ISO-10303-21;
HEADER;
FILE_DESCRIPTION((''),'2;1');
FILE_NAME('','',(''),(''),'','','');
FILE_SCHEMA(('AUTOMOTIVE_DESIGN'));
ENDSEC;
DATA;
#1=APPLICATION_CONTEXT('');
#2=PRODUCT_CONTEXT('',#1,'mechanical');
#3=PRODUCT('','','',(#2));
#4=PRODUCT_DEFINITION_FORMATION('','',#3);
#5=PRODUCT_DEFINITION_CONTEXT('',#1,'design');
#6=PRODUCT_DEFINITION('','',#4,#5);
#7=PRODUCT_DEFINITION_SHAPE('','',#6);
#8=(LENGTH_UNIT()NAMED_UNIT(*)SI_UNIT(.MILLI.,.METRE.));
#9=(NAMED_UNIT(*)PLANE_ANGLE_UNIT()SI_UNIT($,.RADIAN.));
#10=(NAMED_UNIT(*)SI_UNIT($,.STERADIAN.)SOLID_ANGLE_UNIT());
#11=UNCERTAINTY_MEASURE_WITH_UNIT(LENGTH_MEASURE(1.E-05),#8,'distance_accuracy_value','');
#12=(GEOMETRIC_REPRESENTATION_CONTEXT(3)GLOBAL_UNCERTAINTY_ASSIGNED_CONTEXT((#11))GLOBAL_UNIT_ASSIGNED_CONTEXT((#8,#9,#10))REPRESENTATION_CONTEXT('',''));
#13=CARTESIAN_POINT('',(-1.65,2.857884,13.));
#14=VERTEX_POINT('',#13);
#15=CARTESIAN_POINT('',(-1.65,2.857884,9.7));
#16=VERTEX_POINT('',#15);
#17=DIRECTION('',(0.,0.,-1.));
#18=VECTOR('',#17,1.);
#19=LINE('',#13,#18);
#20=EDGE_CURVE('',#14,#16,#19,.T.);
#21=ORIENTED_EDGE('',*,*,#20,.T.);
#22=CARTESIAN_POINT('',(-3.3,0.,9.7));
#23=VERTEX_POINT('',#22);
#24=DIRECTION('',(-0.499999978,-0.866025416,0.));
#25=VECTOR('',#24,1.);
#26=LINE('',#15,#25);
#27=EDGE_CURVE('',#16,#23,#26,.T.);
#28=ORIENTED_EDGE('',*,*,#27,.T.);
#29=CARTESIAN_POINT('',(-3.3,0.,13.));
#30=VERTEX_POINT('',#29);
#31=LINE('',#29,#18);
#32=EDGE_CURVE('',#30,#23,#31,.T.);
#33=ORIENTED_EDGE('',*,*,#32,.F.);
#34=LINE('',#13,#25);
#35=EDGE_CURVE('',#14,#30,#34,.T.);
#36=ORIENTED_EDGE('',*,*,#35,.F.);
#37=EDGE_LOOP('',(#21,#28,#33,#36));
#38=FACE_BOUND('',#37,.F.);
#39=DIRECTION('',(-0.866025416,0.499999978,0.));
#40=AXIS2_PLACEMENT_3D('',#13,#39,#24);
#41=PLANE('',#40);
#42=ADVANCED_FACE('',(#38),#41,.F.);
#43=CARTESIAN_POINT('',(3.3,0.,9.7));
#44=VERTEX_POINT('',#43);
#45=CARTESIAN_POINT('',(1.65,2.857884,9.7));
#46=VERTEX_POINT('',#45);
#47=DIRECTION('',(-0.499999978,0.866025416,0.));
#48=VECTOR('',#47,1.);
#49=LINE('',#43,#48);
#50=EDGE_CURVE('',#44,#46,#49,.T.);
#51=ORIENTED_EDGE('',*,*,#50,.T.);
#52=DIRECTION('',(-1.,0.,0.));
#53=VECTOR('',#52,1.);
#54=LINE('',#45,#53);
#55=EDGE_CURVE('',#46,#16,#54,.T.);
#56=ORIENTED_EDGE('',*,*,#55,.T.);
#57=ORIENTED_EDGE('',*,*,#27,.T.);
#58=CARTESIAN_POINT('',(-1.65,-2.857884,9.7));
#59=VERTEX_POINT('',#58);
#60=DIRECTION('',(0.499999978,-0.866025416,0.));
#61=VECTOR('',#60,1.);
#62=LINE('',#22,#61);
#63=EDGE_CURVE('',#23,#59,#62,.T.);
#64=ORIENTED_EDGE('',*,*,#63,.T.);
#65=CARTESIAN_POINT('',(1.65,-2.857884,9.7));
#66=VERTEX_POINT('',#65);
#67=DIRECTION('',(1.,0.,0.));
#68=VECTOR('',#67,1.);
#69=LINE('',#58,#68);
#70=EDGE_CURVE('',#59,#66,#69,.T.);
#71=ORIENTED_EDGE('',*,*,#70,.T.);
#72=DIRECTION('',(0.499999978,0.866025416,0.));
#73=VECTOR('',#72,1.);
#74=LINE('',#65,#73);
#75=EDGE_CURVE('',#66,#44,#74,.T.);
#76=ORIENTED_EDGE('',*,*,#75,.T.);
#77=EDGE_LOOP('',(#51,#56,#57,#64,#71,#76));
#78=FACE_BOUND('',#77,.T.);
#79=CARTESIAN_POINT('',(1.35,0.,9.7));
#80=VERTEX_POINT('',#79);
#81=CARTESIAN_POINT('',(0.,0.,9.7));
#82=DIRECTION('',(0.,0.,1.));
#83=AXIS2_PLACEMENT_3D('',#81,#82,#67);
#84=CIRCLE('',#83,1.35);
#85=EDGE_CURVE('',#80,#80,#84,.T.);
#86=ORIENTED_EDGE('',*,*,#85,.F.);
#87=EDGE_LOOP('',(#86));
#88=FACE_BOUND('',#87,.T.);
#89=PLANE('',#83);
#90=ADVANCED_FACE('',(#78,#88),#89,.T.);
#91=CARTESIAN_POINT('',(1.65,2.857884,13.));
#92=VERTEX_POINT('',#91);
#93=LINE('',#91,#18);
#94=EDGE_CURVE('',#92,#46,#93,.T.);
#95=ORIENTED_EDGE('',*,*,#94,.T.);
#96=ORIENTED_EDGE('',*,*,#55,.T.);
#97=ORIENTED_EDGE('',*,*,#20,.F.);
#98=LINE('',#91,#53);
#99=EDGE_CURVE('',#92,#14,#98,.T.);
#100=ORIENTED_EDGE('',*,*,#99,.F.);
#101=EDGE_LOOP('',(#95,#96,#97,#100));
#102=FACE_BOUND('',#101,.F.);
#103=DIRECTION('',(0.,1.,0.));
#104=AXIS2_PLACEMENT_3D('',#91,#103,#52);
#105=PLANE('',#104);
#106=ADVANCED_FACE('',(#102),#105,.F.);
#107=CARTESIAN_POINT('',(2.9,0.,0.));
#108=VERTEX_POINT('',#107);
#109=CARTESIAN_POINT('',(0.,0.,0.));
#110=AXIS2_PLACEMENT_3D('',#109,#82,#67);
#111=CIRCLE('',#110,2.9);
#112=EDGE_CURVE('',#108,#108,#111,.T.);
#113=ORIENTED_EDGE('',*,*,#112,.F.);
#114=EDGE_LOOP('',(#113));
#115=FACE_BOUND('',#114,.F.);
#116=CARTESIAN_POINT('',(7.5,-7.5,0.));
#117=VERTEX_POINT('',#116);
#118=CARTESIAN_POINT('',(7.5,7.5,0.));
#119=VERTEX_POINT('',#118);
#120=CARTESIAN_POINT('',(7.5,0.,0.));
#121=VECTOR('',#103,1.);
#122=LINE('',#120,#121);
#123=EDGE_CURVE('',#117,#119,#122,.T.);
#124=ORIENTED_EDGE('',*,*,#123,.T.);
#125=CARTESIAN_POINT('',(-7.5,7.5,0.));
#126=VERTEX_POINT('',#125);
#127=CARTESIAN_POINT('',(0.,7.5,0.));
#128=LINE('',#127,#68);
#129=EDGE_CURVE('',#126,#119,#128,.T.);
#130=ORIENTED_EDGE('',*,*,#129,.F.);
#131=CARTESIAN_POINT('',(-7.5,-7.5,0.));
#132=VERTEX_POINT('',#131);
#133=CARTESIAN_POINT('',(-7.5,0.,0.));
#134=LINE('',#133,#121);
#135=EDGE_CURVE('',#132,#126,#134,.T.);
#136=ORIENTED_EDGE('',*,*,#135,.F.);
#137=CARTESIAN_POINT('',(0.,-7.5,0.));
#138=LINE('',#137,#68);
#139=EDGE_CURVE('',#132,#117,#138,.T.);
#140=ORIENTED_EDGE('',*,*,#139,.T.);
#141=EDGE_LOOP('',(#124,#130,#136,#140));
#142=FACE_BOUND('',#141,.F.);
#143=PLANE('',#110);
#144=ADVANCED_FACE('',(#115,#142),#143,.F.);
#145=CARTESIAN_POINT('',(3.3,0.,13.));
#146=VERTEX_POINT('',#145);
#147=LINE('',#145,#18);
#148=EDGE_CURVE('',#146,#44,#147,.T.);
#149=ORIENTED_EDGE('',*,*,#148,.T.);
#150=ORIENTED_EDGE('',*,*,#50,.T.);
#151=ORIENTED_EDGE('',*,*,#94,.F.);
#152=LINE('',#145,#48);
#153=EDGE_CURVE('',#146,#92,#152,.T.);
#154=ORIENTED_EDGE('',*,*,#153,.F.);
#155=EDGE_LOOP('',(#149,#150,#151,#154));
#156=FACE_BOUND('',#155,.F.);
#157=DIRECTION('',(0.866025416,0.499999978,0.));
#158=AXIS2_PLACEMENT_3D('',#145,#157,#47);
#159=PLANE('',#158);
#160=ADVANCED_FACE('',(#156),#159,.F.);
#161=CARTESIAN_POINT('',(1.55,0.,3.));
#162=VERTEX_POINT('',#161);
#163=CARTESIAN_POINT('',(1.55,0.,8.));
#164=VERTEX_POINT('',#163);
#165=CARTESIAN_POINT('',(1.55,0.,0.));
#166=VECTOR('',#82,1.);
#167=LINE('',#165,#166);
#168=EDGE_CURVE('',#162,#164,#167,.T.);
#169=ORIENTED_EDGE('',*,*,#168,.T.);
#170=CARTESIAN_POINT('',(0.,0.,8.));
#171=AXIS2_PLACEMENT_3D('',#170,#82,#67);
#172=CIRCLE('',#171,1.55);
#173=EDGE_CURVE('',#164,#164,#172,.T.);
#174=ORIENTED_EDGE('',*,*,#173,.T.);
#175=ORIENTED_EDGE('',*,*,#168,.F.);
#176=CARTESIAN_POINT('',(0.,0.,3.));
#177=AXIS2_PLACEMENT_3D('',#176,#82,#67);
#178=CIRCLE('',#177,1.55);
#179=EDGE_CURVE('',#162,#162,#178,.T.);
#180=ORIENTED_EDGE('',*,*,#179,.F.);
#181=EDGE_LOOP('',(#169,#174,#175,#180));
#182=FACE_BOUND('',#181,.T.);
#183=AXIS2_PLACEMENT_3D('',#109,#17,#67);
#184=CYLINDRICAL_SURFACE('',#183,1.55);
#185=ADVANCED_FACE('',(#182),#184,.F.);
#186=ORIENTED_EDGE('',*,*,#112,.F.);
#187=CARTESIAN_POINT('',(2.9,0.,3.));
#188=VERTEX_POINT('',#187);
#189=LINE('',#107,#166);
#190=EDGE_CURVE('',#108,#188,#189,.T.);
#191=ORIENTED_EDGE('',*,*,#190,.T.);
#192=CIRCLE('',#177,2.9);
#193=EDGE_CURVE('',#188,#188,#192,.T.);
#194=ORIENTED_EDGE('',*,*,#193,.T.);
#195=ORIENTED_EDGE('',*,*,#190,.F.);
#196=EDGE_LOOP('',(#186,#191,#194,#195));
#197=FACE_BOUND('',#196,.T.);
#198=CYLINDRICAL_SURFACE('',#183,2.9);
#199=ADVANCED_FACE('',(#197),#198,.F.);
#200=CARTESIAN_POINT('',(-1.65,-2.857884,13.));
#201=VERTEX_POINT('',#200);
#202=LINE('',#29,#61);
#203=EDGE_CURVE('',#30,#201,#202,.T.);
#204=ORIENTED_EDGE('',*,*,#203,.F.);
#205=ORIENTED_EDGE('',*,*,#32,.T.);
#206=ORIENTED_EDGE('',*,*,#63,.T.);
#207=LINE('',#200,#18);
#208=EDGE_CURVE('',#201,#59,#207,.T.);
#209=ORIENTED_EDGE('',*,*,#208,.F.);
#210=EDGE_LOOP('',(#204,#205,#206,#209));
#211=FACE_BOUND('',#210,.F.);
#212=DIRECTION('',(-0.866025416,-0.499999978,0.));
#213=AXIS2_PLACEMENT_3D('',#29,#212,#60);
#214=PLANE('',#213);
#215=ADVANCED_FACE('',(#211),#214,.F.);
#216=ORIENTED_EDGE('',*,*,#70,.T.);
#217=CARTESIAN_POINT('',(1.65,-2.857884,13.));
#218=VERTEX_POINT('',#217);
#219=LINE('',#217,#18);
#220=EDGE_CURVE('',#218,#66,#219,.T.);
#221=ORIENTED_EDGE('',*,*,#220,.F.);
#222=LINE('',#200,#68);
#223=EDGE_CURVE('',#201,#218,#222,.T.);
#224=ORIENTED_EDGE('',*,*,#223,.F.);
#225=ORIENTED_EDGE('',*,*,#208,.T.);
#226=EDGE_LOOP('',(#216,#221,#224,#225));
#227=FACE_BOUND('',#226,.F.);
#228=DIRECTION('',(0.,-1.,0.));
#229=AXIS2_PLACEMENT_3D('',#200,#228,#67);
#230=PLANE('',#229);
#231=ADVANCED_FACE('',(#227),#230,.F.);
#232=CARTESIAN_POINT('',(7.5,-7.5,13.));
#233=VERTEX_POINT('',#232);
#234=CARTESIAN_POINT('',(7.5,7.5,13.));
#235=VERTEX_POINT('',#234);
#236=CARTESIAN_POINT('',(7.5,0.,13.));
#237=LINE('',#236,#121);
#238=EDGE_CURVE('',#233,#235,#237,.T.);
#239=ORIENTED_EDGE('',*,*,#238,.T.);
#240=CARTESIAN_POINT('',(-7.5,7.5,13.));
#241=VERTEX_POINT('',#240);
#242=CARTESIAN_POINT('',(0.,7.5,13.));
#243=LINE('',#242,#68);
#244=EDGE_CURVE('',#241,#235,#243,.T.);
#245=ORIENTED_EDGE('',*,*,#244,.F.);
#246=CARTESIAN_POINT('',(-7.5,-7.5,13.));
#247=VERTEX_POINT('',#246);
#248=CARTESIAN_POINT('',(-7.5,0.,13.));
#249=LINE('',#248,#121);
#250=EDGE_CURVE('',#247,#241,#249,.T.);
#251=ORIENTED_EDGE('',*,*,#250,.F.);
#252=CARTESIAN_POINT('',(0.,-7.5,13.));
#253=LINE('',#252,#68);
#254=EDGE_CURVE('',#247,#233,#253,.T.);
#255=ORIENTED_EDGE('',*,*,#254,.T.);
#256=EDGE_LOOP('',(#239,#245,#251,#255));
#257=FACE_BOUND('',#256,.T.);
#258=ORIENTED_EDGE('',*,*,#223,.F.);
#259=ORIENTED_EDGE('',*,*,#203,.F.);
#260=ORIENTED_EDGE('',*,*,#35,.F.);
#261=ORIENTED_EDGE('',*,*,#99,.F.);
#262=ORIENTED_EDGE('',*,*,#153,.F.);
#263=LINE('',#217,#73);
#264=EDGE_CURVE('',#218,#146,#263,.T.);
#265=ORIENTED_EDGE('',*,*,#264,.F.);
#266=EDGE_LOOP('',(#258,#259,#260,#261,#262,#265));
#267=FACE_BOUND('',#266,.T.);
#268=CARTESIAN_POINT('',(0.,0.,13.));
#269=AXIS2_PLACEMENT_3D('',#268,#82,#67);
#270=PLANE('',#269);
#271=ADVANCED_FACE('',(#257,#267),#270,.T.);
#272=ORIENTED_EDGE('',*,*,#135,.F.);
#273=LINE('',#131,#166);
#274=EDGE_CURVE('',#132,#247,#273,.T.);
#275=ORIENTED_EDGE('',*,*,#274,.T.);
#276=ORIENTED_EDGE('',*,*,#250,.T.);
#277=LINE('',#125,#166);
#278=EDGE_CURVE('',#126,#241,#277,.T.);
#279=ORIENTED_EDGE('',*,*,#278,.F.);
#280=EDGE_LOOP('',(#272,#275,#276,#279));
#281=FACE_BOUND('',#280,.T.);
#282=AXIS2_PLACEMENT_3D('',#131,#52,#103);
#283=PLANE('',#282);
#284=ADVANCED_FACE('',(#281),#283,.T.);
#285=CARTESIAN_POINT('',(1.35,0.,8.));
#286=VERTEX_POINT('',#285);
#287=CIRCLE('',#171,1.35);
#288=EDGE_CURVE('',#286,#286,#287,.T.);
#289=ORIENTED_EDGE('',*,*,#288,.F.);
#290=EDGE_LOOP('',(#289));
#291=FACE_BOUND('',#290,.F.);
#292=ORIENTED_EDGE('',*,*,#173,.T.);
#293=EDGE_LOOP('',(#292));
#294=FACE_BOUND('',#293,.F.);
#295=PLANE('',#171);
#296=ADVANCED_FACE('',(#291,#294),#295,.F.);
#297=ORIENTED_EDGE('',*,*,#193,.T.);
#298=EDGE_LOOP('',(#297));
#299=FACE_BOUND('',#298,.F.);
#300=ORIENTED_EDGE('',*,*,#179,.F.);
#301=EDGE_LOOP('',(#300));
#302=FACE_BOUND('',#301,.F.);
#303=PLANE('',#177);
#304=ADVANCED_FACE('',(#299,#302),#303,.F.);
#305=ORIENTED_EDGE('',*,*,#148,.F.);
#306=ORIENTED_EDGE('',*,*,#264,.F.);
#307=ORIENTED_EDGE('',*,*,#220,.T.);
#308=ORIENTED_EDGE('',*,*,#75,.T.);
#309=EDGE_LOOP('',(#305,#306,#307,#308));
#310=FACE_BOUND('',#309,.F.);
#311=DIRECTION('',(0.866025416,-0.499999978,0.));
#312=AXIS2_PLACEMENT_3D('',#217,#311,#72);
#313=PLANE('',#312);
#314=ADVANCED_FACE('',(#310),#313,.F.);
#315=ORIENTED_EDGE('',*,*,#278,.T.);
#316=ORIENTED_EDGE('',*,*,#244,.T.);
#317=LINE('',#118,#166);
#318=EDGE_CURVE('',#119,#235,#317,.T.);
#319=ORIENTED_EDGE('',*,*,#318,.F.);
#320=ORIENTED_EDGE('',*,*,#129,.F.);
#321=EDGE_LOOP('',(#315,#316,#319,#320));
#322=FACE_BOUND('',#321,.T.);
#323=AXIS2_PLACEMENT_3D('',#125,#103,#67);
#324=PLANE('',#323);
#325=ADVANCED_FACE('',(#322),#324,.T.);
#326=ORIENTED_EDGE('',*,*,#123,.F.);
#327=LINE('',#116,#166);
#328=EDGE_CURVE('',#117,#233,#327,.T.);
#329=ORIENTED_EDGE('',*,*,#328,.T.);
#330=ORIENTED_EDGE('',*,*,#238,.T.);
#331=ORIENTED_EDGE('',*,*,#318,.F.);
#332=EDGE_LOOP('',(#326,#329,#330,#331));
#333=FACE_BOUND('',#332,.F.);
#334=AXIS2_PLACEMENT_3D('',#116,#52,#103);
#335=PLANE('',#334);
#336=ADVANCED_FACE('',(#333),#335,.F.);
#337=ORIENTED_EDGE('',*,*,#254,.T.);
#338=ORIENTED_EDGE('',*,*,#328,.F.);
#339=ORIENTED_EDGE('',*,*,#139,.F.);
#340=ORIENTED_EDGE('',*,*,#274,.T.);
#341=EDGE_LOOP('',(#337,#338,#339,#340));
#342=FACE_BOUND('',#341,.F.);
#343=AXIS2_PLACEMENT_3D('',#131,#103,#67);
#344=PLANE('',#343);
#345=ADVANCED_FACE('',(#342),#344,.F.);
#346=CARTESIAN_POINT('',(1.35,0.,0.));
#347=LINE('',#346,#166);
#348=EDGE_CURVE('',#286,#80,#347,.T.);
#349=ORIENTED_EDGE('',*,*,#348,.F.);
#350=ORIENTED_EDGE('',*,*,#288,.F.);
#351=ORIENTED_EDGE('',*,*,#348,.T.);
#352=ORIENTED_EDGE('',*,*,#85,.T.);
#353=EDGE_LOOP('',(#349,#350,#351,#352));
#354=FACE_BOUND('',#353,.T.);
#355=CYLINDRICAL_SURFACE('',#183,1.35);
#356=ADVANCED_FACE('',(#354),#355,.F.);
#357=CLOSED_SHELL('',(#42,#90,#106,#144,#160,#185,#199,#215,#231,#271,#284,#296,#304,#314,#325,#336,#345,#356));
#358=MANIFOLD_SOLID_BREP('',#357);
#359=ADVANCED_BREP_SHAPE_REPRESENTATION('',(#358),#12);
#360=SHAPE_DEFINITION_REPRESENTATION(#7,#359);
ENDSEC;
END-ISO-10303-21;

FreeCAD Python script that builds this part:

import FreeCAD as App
import Part
import Sketcher
Q = App.Units.Quantity

doc = App.newDocument("Part")
body = doc.addObject("PartDesign::Body", "Body")

# Sketch on XY plane
sketch1 = body.newObject("Sketcher::SketchObject", "Sketch")
sketch1.AttachmentSupport = (doc.getObject("XY_Plane"), [""])
sketch1.MapMode = "FlatFace"
sketch1.addGeometry(Part.LineSegment(App.Vector(-7.5, 7.5, 0), App.Vector(-7.5, -7.5, 0)), False)
sketch1.addGeometry(Part.LineSegment(App.Vector(-7.5, -7.5, 0), App.Vector(7.5, -7.5, 0)), False)
sketch1.addGeometry(Part.LineSegment(App.Vector(7.5, -7.5, 0), App.Vector(7.5, 7.5, 0)), False)
sketch1.addGeometry(Part.LineSegment(App.Vector(7.5, 7.5, 0), App.Vector(-7.5, 7.5, 0)), False)
sketch1.addGeometry(Part.Circle(App.Vector(0, 0, 0), App.Vector(0, 0, 1), 1.4), False)
sketch1.addConstraint(Sketcher.Constraint("Coincident", 0, 2, 1, 1))
sketch1.addConstraint(Sketcher.Constraint("Coincident", 1, 2, 2, 1))
sketch1.addConstraint(Sketcher.Constraint("Coincident", 2, 2, 3, 1))
sketch1.addConstraint(Sketcher.Constraint("Coincident", 3, 2, 0, 1))
sketch1.addConstraint(Sketcher.Constraint("Vertical", 0))
sketch1.addConstraint(Sketcher.Constraint("Horizontal", 1))
sketch1.addConstraint(Sketcher.Constraint("Vertical", 2))
sketch1.addConstraint(Sketcher.Constraint("Horizontal", 3))
sketch1.addConstraint(Sketcher.Constraint("Coincident", 4, 3, -1, 1))
sketch1.addConstraint(Sketcher.Constraint("Symmetric", 0, 2, 2, 2, -1, 1))
sketch1.addConstraint(Sketcher.Constraint("Equal", 3, 0))
sketch1.addConstraint(Sketcher.Constraint("Diameter", 4, 2.7))
sketch1.addConstraint(Sketcher.Constraint("DistanceX", 1, 1, 1, 2, 15.0))
pad1 = body.newObject("PartDesign::Pad", "Pad")
pad1.Profile = sketch1
pad1.Length = 13

# Sketch on XY plane
sketch2 = body.newObject("Sketcher::SketchObject", "Sketch001")
sketch2.AttachmentSupport = (doc.getObject("XY_Plane"), [""])
sketch2.MapMode = "FlatFace"
sketch2.addGeometry(Part.Circle(App.Vector(0, 0, 0), App.Vector(0, 0, 1), 1.6), False)
sketch2.addGeometry(Part.Circle(App.Vector(0, 0, 0), App.Vector(0, 0, 1), 1.4), False)
sketch2.addConstraint(Sketcher.Constraint("Coincident", 0, 3, -1, 1))
sketch2.addConstraint(Sketcher.Constraint("Coincident", 1, 3, -1, 1))
sketch2.addConstraint(Sketcher.Constraint("Diameter", 0, 3.1))
sketch2.addConstraint(Sketcher.Constraint("Diameter", 1, 2.7))
pocket1 = body.newObject("PartDesign::Pocket", "Pocket")
pocket1.Profile = sketch2
pocket1.Length = 8
pocket1.Reversed = True

# Sketch on XY plane
sketch3 = body.newObject("Sketcher::SketchObject", "Sketch002")
sketch3.AttachmentSupport = (doc.getObject("XY_Plane"), [""])
sketch3.MapMode = "FlatFace"
sketch3.addGeometry(Part.Circle(App.Vector(0, 0, 0), App.Vector(0, 0, 1), 2.9), False)
sketch3.addGeometry(Part.Circle(App.Vector(0, 0, 0), App.Vector(0, 0, 1), 1.6), False)
sketch3.addConstraint(Sketcher.Constraint("Coincident", 0, 3, -1, 1))
sketch3.addConstraint(Sketcher.Constraint("Coincident", 1, 3, -1, 1))
sketch3.addConstraint(Sketcher.Constraint("Diameter", 0, 5.8))
sketch3.addConstraint(Sketcher.Constraint("Diameter", 1, 3.1))
pocket2 = body.newObject("PartDesign::Pocket", "Pocket001")
pocket2.Profile = sketch3
pocket2.Length = 3
pocket2.Reversed = True

# Sketch on XY plane
sketch4 = body.newObject("Sketcher::SketchObject", "Sketch003")
sketch4.AttachmentSupport = (doc.getObject("XY_Plane"), [""])
sketch4.MapMode = "FlatFace"
sketch4.AttachmentOffset = App.Placement(App.Vector(0, 0, 13), App.Rotation())
sketch4.addGeometry(Part.LineSegment(App.Vector(3.3, 0, 0), App.Vector(1.6, 2.9, 0)), False)
sketch4.addGeometry(Part.LineSegment(App.Vector(1.6, 2.9, 0), App.Vector(-1.6, 2.9, 0)), False)
sketch4.addGeometry(Part.LineSegment(App.Vector(-1.6, 2.9, 0), App.Vector(-3.3, 0, 0)), False)
sketch4.addGeometry(Part.LineSegment(App.Vector(-3.3, 0, 0), App.Vector(-1.6, -2.9, 0)), False)
sketch4.addGeometry(Part.LineSegment(App.Vector(-1.6, -2.9, 0), App.Vector(1.6, -2.9, 0)), False)
sketch4.addGeometry(Part.LineSegment(App.Vector(1.6, -2.9, 0), App.Vector(3.3, 0, 0)), False)
sketch4.addGeometry(Part.Circle(App.Vector(0, 0, 0), App.Vector(0, 0, 1), 1.4), False)
sketch4.addConstraint(Sketcher.Constraint("Coincident", 0, 2, 1, 1))
sketch4.addConstraint(Sketcher.Constraint("Coincident", 1, 2, 2, 1))
sketch4.addConstraint(Sketcher.Constraint("Coincident", 2, 2, 3, 1))
sketch4.addConstraint(Sketcher.Constraint("Coincident", 3, 2, 4, 1))
sketch4.addConstraint(Sketcher.Constraint("Coincident", 4, 2, 5, 1))
sketch4.addConstraint(Sketcher.Constraint("Coincident", 5, 2, 0, 1))
sketch4.addConstraint(Sketcher.Constraint("Horizontal", 1))
sketch4.addConstraint(Sketcher.Constraint("Horizontal", 4))
sketch4.addConstraint(Sketcher.Constraint("Coincident", 6, 3, -1, 1))
sketch4.addConstraint(Sketcher.Constraint("Symmetric", 0, 2, 3, 2, -1, 1))
sketch4.addConstraint(Sketcher.Constraint("Symmetric", 2, 2, 5, 2, -1, 1))
sketch4.addConstraint(Sketcher.Constraint("PointOnObject", 2, 2, -1))
sketch4.addConstraint(Sketcher.Constraint("Parallel", 2, 5))
sketch4.addConstraint(Sketcher.Constraint("Vertical", 1, 2, 3, 2))
sketch4.addConstraint(Sketcher.Constraint("Diameter", 6, 2.7))
sketch4.addConstraint(Sketcher.Constraint("Angle", 0, Q("119.999999 deg")))
sketch4.addConstraint(Sketcher.Constraint("DistanceX", 1, 2, 1, 1, 3.3))
sketch4.addConstraint(Sketcher.Constraint("Distance", 0, 3.3))
pocket3 = body.newObject("PartDesign::Pocket", "Pocket002")
pocket3.Profile = sketch4
pocket3.Length = 3.3

doc.recompute()
